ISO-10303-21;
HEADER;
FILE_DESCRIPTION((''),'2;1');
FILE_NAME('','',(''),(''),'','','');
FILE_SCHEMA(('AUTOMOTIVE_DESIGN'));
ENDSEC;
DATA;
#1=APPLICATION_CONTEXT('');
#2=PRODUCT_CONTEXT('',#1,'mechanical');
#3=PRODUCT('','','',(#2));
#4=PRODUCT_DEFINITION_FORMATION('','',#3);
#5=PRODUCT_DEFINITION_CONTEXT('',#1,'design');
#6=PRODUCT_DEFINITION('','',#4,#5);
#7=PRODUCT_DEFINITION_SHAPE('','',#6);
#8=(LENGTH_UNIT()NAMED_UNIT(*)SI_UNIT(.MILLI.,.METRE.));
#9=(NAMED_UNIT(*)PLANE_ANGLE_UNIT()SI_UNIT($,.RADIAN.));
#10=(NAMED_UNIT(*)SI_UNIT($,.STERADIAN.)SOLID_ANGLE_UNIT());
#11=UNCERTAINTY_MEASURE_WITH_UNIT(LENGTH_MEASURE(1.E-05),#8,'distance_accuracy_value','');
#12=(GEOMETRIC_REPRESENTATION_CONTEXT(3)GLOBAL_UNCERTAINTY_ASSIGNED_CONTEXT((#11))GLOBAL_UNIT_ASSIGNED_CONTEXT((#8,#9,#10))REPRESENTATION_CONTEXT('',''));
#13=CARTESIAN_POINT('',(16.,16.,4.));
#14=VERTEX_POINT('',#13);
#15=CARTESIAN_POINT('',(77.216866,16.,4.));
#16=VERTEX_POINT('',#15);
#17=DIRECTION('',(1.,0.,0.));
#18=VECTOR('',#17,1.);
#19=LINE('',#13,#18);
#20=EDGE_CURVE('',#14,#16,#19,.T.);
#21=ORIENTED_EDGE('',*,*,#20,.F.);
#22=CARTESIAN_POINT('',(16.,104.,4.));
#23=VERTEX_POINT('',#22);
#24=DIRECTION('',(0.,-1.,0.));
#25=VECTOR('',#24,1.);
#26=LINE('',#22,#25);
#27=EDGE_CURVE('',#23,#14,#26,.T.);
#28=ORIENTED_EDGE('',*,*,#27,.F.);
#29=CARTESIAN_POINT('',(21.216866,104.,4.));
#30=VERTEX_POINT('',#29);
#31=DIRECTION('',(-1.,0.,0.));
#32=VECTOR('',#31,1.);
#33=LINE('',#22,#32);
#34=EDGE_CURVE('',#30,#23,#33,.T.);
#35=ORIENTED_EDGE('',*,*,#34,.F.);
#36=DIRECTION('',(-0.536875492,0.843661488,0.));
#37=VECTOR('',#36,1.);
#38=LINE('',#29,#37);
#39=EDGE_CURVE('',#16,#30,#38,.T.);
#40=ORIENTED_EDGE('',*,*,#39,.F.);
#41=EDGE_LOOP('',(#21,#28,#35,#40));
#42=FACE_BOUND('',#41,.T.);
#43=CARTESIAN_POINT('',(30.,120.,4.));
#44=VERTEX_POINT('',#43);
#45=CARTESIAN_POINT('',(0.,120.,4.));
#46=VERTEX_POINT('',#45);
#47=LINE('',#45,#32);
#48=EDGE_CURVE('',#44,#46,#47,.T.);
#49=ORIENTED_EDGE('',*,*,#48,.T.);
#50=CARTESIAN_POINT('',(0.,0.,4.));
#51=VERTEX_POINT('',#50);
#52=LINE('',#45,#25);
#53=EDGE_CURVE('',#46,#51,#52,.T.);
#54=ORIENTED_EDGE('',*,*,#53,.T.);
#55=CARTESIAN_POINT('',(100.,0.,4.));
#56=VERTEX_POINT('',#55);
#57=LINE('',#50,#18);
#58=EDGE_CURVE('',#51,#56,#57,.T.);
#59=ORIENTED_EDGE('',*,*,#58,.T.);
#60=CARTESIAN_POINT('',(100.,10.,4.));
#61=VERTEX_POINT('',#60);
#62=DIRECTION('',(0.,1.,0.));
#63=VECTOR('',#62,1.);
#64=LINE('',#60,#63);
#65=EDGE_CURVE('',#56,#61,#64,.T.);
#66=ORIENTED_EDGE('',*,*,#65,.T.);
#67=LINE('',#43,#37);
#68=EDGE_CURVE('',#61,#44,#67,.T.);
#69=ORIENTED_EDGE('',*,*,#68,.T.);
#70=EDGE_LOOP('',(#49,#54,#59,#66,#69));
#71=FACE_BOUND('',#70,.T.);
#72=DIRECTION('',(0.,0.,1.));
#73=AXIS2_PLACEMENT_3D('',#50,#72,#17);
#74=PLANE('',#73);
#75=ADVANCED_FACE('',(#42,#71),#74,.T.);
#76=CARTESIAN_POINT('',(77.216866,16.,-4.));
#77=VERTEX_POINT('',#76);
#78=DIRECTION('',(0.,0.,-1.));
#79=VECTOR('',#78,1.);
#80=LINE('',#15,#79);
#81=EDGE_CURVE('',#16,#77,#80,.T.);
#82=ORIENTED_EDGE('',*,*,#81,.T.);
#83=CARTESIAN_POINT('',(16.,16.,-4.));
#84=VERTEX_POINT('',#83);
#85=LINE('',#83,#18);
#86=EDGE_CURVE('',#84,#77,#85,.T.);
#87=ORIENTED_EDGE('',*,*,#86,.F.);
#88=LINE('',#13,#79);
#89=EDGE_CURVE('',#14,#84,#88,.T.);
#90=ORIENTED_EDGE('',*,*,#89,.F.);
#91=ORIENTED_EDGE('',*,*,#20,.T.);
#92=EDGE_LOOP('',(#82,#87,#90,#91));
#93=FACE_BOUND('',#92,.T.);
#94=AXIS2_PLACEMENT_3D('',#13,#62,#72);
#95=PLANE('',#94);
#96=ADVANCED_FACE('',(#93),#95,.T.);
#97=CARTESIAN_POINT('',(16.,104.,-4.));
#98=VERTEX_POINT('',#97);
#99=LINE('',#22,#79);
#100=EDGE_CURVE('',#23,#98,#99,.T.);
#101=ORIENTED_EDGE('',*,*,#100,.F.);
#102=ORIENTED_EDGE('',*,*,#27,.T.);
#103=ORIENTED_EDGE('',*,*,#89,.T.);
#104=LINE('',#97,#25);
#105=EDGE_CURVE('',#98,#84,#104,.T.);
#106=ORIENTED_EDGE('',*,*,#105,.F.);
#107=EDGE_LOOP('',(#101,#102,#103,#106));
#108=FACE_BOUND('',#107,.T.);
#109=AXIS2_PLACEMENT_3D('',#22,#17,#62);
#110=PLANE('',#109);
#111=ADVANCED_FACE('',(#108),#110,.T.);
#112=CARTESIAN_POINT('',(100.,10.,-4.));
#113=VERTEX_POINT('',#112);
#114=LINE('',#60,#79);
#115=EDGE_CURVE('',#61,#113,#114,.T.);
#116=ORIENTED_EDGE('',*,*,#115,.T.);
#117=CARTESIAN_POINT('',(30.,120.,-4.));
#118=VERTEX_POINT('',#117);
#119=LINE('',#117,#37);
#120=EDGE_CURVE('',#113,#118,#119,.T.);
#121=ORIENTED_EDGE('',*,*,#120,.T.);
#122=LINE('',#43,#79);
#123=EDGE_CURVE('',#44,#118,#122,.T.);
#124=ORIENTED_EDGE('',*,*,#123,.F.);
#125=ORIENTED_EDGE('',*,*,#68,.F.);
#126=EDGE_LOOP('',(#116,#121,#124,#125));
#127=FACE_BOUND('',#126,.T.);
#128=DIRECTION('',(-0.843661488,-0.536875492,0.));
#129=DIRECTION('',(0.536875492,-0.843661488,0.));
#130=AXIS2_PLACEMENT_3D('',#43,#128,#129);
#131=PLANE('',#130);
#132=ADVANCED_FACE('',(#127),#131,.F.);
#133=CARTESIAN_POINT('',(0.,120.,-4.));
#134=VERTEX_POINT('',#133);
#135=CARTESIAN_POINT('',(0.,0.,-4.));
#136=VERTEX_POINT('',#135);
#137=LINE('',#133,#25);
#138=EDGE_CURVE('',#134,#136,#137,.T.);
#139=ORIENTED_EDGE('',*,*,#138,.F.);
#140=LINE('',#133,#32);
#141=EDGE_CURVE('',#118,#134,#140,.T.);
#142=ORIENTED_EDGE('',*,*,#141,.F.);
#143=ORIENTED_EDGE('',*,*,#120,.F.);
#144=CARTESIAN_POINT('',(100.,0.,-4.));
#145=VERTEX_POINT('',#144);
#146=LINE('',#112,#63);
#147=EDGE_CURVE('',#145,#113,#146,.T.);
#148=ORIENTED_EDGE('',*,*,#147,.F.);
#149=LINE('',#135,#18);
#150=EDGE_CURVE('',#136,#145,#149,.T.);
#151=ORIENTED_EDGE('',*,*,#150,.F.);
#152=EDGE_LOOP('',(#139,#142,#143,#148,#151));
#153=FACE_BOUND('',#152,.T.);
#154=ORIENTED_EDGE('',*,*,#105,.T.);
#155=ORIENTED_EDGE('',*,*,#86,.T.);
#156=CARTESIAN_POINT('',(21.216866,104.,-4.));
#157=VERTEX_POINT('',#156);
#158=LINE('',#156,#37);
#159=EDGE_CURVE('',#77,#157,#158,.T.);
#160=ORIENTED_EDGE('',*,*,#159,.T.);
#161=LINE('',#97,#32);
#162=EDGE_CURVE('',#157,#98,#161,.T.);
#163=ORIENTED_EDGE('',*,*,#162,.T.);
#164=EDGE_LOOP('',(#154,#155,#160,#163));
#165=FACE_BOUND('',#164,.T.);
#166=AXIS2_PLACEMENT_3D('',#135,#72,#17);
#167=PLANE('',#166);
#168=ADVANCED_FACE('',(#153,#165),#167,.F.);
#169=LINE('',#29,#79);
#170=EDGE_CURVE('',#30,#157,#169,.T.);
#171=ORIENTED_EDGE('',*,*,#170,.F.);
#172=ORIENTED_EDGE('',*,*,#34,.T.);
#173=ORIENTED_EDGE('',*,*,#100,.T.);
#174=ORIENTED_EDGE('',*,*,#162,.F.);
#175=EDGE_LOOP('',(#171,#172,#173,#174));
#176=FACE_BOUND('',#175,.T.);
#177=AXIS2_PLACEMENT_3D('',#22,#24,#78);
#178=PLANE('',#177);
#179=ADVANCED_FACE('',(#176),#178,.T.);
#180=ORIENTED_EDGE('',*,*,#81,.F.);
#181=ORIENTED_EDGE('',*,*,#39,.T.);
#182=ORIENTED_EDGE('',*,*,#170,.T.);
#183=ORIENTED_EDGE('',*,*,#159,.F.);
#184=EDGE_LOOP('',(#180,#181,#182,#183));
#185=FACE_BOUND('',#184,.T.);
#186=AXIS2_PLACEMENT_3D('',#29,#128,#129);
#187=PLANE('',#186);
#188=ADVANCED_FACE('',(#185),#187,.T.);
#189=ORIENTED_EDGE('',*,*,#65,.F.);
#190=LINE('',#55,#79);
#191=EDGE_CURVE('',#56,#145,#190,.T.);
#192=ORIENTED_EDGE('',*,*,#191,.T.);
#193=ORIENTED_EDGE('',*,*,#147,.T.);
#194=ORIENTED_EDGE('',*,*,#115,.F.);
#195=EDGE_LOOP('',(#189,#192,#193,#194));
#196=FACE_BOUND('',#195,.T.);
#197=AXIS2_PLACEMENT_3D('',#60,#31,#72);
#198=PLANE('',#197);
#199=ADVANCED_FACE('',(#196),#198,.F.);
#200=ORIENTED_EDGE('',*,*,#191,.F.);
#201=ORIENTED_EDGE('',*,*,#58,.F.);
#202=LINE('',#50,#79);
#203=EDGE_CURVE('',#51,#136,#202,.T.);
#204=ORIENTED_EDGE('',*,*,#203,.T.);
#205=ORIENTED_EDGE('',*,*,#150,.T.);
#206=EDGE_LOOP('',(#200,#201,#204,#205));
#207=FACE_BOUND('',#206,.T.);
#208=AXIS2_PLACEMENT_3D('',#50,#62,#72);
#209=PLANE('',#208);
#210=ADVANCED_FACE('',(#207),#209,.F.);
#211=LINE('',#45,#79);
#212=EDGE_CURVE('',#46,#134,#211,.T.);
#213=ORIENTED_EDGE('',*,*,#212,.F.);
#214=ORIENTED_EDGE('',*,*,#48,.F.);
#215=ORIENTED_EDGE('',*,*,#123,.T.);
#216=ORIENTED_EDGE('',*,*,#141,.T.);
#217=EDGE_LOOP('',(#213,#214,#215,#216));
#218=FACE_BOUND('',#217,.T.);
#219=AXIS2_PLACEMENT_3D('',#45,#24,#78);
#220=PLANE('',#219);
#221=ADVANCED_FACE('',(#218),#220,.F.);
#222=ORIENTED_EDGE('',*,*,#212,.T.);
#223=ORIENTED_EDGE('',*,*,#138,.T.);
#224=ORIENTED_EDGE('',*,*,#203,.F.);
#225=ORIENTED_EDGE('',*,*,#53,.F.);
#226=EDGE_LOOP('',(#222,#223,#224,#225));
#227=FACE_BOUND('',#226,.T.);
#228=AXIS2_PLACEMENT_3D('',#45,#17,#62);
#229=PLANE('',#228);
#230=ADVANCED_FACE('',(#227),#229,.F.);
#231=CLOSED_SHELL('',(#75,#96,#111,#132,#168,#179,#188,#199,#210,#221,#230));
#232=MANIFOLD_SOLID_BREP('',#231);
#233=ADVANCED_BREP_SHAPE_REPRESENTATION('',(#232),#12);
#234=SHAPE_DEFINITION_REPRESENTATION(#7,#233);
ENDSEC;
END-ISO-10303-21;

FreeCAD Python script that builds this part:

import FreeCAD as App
import Part
import Sketcher
from FreeCAD import Vector

doc = App.newDocument("Part")
body = doc.addObject("PartDesign::Body", "Body")

sketch1 = body.newObject("Sketcher::SketchObject", "Sketch")
sketch1.AttachmentSupport = (doc.getObject("XY_Plane"), [""])
sketch1.MapMode = "FlatFace"
sketch1.addGeometry(Part.LineSegment(Vector(0, 0, 0), Vector(100, 0, 0)), False)
sketch1.addGeometry(Part.LineSegment(Vector(100, 0, 0), Vector(100, 10, 0)), False)
sketch1.addGeometry(Part.LineSegment(Vector(100, 10, 0), Vector(30, 120, 0)), False)
sketch1.addGeometry(Part.LineSegment(Vector(30, 120, 0), Vector(0, 120, 0)), False)
sketch1.addGeometry(Part.LineSegment(Vector(0, 120, 0), Vector(0, 0, 0)), False)
sketch1.addGeometry(Part.LineSegment(Vector(16, 16, 0), Vector(16, 104, 0)), False)
sketch1.addGeometry(Part.LineSegment(Vector(16, 104, 0), Vector(21, 104, 0)), False)
sketch1.addGeometry(Part.LineSegment(Vector(21, 104, 0), Vector(77, 16, 0)), False)
sketch1.addGeometry(Part.LineSegment(Vector(77, 16, 0), Vector(16, 16, 0)), False)
sketch1.addConstraint(Sketcher.Constraint("Coincident", 0, 2, 1, 1))
sketch1.addConstraint(Sketcher.Constraint("Coincident", 1, 2, 2, 1))
sketch1.addConstraint(Sketcher.Constraint("Coincident", 2, 2, 3, 1))
sketch1.addConstraint(Sketcher.Constraint("Coincident", 3, 2, 4, 1))
sketch1.addConstraint(Sketcher.Constraint("Coincident", 4, 2, 0, 1))
sketch1.addConstraint(Sketcher.Constraint("Coincident", 5, 2, 6, 1))
sketch1.addConstraint(Sketcher.Constraint("Coincident", 6, 2, 7, 1))
sketch1.addConstraint(Sketcher.Constraint("Coincident", 7, 2, 8, 1))
sketch1.addConstraint(Sketcher.Constraint("Coincident", 8, 2, 5, 1))
sketch1.addConstraint(Sketcher.Constraint("Horizontal", 0))
sketch1.addConstraint(Sketcher.Constraint("Vertical", 1))
sketch1.addConstraint(Sketcher.Constraint("Horizontal", 3))
sketch1.addConstraint(Sketcher.Constraint("Vertical", 4))
sketch1.addConstraint(Sketcher.Constraint("Vertical", 5))
sketch1.addConstraint(Sketcher.Constraint("Horizontal", 6))
sketch1.addConstraint(Sketcher.Constraint("Horizontal", 8))
sketch1.addConstraint(Sketcher.Constraint("Coincident", 4, 2, -1, 1))
sketch1.addConstraint(Sketcher.Constraint("Parallel", 2, 7))
sketch1.addConstraint(Sketcher.Constraint("DistanceX", 0, 1, 0, 2, 100.0))
sketch1.addConstraint(Sketcher.Constraint("DistanceX", 3, 2, 3, 1, 30.0))
sketch1.addConstraint(Sketcher.Constraint("DistanceY", 1, 1, 1, 2, 10.0))
sketch1.addConstraint(Sketcher.Constraint("DistanceY", 4, 2, 4, 1, 120.0))
sketch1.addConstraint(Sketcher.Constraint("DistanceY", 5, 1, 5, 2, 88.0))
sketch1.addConstraint(Sketcher.Constraint("DistanceX", -1, 1, 5, 2, 16.0))
sketch1.addConstraint(Sketcher.Constraint("DistanceY", -1, 1, 5, 2, 104.0))
sketch1.addConstraint(Sketcher.Constraint("DistanceX", 6, 1, 6, 2, 5.216866))
pad1 = body.newObject("PartDesign::Pad", "Pad")
pad1.Profile = sketch1
pad1.Length = 8
pad1.Midplane = True

doc.recompute()
